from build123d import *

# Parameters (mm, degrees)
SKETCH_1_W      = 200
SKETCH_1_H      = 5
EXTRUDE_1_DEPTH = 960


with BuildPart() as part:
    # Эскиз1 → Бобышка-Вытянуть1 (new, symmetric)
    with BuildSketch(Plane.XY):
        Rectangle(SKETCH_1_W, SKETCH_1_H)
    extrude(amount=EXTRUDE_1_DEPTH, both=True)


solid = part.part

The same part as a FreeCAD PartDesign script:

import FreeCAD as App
import Part
import Sketcher

V = App.Vector
Q = App.Units.Quantity


def add_polygon(sketch, points):
    """Adds a closed chain of lines whose ends are joined by coincident constraints."""
    first, n = sketch.GeometryCount, len(points)
    for a, b in zip(points, points[1:] + points[:1]):
        sketch.addGeometry(Part.LineSegment(App.Vector(*a, 0), App.Vector(*b, 0)), False)
    for i in range(n):
        sketch.addConstraint(Sketcher.Constraint("Coincident", first + i, 2, first + (i + 1) % n, 1))

doc = App.newDocument("Part")
params = doc.addObject("Spreadsheet::Sheet", "Params")
for row, (alias, value) in enumerate([
    ("sketch1_width", "200 mm"),
    ("sketch1_height", "5 mm"),
    ("pad1_length", "1920 mm"),
], start=1):
    params.set(f"A{row}", alias)
    params.set(f"B{row}", "=" + value)
    params.setAlias(f"B{row}", alias)

body = doc.addObject("PartDesign::Body", "Body")

sketch1 = body.newObject("Sketcher::SketchObject", "Sketch")
sketch1.AttachmentSupport = (doc.getObject("XY_Plane"), [""])
sketch1.MapMode = "FlatFace"
add_polygon(sketch1, [(-100, 2), (-100, -2), (100, -2), (100, 2)])
sketch1.addConstraint([
    Sketcher.Constraint("Vertical", 0),
    Sketcher.Constraint("Horizontal", 1),
    Sketcher.Constraint("Vertical", 2),
    Sketcher.Constraint("Horizontal", 3),
    Sketcher.Constraint("Symmetric", 0, 2, 2, 2, -1, 1),
    Sketcher.Constraint("DistanceX", 1, 1, 1, 2, Q("200 mm")),
    Sketcher.Constraint("DistanceY", 0, 2, 0, 1, Q("5 mm")),
])
sketch1.setExpression("Constraints[9]", "Params.sketch1_width")
sketch1.setExpression("Constraints[10]", "Params.sketch1_height")
pad1 = body.newObject("PartDesign::Pad", "Pad")
pad1.Profile = sketch1
pad1.setExpression("Length", "Params.pad1_length")
pad1.Midplane = True

doc.recompute()
